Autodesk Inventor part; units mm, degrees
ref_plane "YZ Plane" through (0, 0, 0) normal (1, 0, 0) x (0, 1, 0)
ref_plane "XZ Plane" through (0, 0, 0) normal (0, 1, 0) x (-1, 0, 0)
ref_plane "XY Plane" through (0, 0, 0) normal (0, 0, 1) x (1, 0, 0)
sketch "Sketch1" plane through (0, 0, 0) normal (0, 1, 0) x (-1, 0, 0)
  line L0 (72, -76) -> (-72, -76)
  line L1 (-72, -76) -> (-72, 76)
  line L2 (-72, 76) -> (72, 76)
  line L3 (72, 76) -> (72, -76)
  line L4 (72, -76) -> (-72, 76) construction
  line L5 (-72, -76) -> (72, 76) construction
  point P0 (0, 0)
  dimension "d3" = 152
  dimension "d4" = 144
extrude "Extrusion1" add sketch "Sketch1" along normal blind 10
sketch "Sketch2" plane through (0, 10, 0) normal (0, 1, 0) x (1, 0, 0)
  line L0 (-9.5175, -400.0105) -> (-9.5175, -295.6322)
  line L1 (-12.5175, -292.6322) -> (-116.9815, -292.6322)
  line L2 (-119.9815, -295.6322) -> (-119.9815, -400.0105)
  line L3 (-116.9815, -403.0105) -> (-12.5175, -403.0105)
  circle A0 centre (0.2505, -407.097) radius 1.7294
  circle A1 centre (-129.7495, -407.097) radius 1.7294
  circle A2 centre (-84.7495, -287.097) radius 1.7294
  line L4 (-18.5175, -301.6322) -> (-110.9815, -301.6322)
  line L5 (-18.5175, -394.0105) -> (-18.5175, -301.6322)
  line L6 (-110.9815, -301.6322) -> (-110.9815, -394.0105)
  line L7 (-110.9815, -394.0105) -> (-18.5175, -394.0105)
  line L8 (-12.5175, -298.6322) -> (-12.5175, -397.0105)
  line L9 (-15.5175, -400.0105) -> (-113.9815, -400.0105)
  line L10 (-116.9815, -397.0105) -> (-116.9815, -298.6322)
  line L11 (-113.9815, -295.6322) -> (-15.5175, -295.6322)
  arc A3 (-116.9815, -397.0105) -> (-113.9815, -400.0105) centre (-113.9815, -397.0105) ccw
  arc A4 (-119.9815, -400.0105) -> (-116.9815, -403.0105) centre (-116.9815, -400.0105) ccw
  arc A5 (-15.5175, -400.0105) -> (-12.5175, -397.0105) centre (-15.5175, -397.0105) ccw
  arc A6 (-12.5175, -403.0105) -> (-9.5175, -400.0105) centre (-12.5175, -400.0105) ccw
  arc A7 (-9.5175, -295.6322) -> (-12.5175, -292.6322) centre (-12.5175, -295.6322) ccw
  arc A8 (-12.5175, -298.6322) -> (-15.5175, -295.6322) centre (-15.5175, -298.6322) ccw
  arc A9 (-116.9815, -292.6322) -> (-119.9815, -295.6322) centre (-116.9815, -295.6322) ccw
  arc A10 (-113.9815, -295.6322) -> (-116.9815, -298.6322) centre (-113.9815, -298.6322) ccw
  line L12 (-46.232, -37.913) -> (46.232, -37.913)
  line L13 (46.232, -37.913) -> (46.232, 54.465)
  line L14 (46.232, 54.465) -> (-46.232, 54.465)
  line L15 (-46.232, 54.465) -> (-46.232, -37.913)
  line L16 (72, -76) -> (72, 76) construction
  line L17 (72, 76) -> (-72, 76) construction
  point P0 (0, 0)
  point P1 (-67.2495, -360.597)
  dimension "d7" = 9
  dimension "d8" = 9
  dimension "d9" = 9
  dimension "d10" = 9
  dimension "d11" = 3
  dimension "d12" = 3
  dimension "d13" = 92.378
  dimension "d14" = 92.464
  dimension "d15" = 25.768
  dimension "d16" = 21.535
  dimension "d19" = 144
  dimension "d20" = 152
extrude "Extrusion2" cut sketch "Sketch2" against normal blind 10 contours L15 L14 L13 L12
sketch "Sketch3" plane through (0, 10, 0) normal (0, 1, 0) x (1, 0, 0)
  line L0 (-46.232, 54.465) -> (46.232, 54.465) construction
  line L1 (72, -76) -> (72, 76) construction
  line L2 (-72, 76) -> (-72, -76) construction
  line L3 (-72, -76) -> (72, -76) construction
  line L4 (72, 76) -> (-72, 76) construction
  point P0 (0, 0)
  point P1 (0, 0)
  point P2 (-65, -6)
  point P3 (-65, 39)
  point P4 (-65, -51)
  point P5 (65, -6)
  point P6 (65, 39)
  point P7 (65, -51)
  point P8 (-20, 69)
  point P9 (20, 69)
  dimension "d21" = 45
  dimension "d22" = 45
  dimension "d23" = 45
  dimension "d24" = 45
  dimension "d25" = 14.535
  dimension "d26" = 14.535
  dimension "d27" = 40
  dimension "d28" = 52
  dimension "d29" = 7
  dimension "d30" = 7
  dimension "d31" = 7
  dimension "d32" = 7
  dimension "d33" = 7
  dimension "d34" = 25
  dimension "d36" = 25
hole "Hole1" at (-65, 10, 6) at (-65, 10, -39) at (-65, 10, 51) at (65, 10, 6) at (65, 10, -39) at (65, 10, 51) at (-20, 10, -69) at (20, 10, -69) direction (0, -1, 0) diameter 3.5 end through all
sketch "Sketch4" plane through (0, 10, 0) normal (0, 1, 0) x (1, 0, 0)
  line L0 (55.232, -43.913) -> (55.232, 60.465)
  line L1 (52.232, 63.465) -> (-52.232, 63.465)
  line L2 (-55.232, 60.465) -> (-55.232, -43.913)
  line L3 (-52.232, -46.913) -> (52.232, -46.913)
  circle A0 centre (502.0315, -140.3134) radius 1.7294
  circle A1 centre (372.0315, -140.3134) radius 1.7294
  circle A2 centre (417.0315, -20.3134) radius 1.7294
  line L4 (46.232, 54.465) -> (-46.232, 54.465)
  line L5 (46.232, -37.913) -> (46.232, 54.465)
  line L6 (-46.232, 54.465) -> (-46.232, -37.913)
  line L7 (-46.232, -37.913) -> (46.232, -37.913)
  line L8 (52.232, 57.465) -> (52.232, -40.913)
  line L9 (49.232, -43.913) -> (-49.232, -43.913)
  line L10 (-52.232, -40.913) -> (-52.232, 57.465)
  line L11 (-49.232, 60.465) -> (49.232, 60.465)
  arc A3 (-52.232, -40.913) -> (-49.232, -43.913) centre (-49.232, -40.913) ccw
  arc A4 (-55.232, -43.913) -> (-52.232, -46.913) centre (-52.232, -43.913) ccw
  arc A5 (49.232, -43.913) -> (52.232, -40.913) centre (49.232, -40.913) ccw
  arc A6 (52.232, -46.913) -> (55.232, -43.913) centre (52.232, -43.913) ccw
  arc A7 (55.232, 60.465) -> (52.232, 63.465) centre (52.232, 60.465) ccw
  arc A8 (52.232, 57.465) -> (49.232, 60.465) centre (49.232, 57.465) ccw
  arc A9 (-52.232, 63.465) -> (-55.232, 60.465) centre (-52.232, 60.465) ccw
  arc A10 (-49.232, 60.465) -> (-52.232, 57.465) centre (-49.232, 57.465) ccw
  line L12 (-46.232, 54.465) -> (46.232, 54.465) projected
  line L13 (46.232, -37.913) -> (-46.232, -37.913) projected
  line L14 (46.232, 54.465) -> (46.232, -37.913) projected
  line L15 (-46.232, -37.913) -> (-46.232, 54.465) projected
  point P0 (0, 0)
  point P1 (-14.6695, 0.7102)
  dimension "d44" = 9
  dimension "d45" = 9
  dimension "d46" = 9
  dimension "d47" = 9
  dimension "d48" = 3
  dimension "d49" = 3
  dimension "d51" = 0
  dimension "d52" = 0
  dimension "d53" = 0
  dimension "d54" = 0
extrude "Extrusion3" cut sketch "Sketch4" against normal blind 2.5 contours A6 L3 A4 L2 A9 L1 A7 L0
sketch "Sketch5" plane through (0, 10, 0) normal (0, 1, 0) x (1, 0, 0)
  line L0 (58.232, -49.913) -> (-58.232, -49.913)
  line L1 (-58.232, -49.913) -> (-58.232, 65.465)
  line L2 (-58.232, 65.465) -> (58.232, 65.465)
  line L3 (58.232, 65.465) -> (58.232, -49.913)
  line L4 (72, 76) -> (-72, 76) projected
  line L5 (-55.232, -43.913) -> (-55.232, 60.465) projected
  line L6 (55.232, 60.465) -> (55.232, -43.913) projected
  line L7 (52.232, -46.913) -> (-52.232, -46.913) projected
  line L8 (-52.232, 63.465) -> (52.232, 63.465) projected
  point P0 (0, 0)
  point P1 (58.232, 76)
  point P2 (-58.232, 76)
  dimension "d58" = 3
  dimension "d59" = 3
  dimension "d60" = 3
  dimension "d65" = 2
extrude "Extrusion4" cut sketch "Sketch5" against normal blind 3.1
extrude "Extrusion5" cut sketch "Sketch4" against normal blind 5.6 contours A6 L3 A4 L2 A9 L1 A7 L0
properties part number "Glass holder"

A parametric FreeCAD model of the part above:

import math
import FreeCAD as App
import Part
import Sketcher
from FreeCAD import Vector
Q = App.Units.Quantity


def add_polygon(sketch, points):
    """Adds a closed chain of lines whose ends are joined by coincident constraints."""
    first, n = sketch.GeometryCount, len(points)
    for a, b in zip(points, points[1:] + points[:1]):
        sketch.addGeometry(Part.LineSegment(App.Vector(*a, 0), App.Vector(*b, 0)), False)
    for i in range(n):
        sketch.addConstraint(Sketcher.Constraint("Coincident", first + i, 2, first + (i + 1) % n, 1))

doc = App.newDocument("Part")
body = doc.addObject("PartDesign::Body", "Body")

# Sketch on XZ plane
sketch1 = body.newObject("Sketcher::SketchObject", "Sketch")
sketch1.AttachmentSupport = (doc.getObject("XZ_Plane"), [""])
sketch1.MapMode = "FlatFace"
add_polygon(sketch1, [(72, -76), (-72, -76), (-72, 76), (72, 76)])  # lines 0-3
sketch1.addConstraint(Sketcher.Constraint("Horizontal", 0))
sketch1.addConstraint(Sketcher.Constraint("Vertical", 1))
sketch1.addConstraint(Sketcher.Constraint("Horizontal", 2))
sketch1.addConstraint(Sketcher.Constraint("Vertical", 3))
sketch1.addConstraint(Sketcher.Constraint("Symmetric", 0, 2, 2, 2, -1, 1))
sketch1.addConstraint(Sketcher.Constraint("DistanceX", 0, 2, 0, 1, Q("144 mm")))
sketch1.addConstraint(Sketcher.Constraint("DistanceY", 1, 1, 1, 2, Q("152 mm")))
pad1 = body.newObject("PartDesign::Pad", "Pad")
pad1.Profile = sketch1
pad1.Length = 10
pad1.Reversed = True

# Sketch on XZ plane
sketch2 = body.newObject("Sketcher::SketchObject", "Sketch001")
sketch2.AttachmentSupport = (doc.getObject("XZ_Plane"), [""])
sketch2.MapMode = "FlatFace"
sketch2.AttachmentOffset = App.Placement(Vector(0, 0, -10), App.Rotation())
add_polygon(sketch2, [(-46, -54), (-46, 38), (46, 38), (46, -54)])  # lines 0-3
sketch2.addConstraint(Sketcher.Constraint("Vertical", 0))
sketch2.addConstraint(Sketcher.Constraint("Horizontal", 1))
sketch2.addConstraint(Sketcher.Constraint("Vertical", 2))
sketch2.addConstraint(Sketcher.Constraint("Horizontal", 3))
sketch2.addConstraint(Sketcher.Constraint("DistanceX", 1, 1, 1, 2, Q("92.464 mm")))
sketch2.addConstraint(Sketcher.Constraint("DistanceY", 0, 1, 0, 2, Q("92.378 mm")))
sketch2.addConstraint(Sketcher.Constraint("DistanceX", 0, 2, -1, 1, Q("46.232 mm")))
sketch2.addConstraint(Sketcher.Constraint("DistanceY", -1, 1, 0, 2, Q("37.913 mm")))
pocket1 = body.newObject("PartDesign::Pocket", "Pocket")
pocket1.Profile = sketch2
pocket1.Length = 10
pocket1.Reversed = True

# Sketch on XZ plane
sketch3 = body.newObject("Sketcher::SketchObject", "Sketch002")
sketch3.AttachmentSupport = (doc.getObject("XZ_Plane"), [""])
sketch3.MapMode = "FlatFace"
sketch3.AttachmentOffset = App.Placement(Vector(0, 0, -10), App.Rotation())
sketch3.addGeometry(Part.Circle(Vector(-65, 6, 0), Vector(0, 0, 1), 1.8), False)
sketch3.addGeometry(Part.Circle(Vector(-65, -39, 0), Vector(0, 0, 1), 1.8), False)
sketch3.addGeometry(Part.Circle(Vector(-65, 51, 0), Vector(0, 0, 1), 1.8), False)
sketch3.addGeometry(Part.Circle(Vector(65, 6, 0), Vector(0, 0, 1), 1.8), False)
sketch3.addGeometry(Part.Circle(Vector(65, -39, 0), Vector(0, 0, 1), 1.8), False)
sketch3.addGeometry(Part.Circle(Vector(65, 51, 0), Vector(0, 0, 1), 1.8), False)
sketch3.addGeometry(Part.Circle(Vector(-20, -69, 0), Vector(0, 0, 1), 1.8), False)
sketch3.addGeometry(Part.Circle(Vector(20, -69, 0), Vector(0, 0, 1), 1.8), False)
sketch3.addConstraint(Sketcher.Constraint("Equal", 0, 1))
sketch3.addConstraint(Sketcher.Constraint("Equal", 1, 2))
sketch3.addConstraint(Sketcher.Constraint("Equal", 2, 3))
sketch3.addConstraint(Sketcher.Constraint("Equal", 3, 4))
sketch3.addConstraint(Sketcher.Constraint("Equal", 4, 5))
sketch3.addConstraint(Sketcher.Constraint("Equal", 5, 6))
sketch3.addConstraint(Sketcher.Constraint("Equal", 6, 7))
sketch3.addConstraint(Sketcher.Constraint("Symmetric", 0, 3, 3, 3, -2))
sketch3.addConstraint(Sketcher.Constraint("Symmetric", 1, 3, 4, 3, -2))
sketch3.addConstraint(Sketcher.Constraint("Symmetric", 2, 3, 5, 3, -2))
sketch3.addConstraint(Sketcher.Constraint("Symmetric", 6, 3, 7, 3, -2))
sketch3.addConstraint(Sketcher.Constraint("Vertical", 0, 3, 1, 3))
sketch3.addConstraint(Sketcher.Constraint("Vertical", 1, 3, 2, 3))
sketch3.addConstraint(Sketcher.Constraint("Diameter", 0, Q("3.5 mm")))
sketch3.addConstraint(Sketcher.Constraint("DistanceX", 0, 3, -1, 1, Q("65 mm")))
sketch3.addConstraint(Sketcher.Constraint("DistanceY", -1, 1, 0, 3, Q("6 mm")))
sketch3.addConstraint(Sketcher.Constraint("DistanceY", 1, 3, -1, 1, Q("39 mm")))
sketch3.addConstraint(Sketcher.Constraint("DistanceY", -1, 1, 2, 3, Q("51 mm")))
sketch3.addConstraint(Sketcher.Constraint("DistanceX", 6, 3, -1, 1, Q("20 mm")))
sketch3.addConstraint(Sketcher.Constraint("DistanceY", 6, 3, -1, 1, Q("69 mm")))
doc.recompute()
hole = body.newObject("PartDesign::Hole", "Hole")
hole.Profile = sketch3
hole.ThreadType = "None"
hole.Diameter = 3.5
hole.DepthType = "ThroughAll"
hole.Reversed = True

# Sketch on XZ plane
sketch4 = body.newObject("Sketcher::SketchObject", "Sketch003")
sketch4.AttachmentSupport = (doc.getObject("XZ_Plane"), [""])
sketch4.MapMode = "FlatFace"
sketch4.AttachmentOffset = App.Placement(Vector(0, 0, -10), App.Rotation())
sketch4.addGeometry(Part.ArcOfCircle(Part.Circle(Vector(52.2, 43.9, 0), Vector(0, 0, 1), 3), math.radians(0), math.radians(90)), False)
sketch4.addGeometry(Part.LineSegment(Vector(55.2, 43.9, 0), Vector(55.2, -60.5, 0)), False)
sketch4.addGeometry(Part.ArcOfCircle(Part.Circle(Vector(52.2, -60.5, 0), Vector(0, 0, 1), 3), math.radians(-90), math.radians(0)), False)
sketch4.addGeometry(Part.LineSegment(Vector(52.2, -63.5, 0), Vector(-52.2, -63.5, 0)), False)
sketch4.addGeometry(Part.ArcOfCircle(Part.Circle(Vector(-52.2, -60.5, 0), Vector(0, 0, 1), 3), math.radians(180), math.radians(270)), False)
sketch4.addGeometry(Part.LineSegment(Vector(-55.2, -60.5, 0), Vector(-55.2, 43.9, 0)), False)
sketch4.addGeometry(Part.ArcOfCircle(Part.Circle(Vector(-52.2, 43.9, 0), Vector(0, 0, 1), 3), math.radians(90), math.radians(180)), False)
sketch4.addGeometry(Part.LineSegment(Vector(-52.2, 46.9, 0), Vector(52.2, 46.9, 0)), False)
sketch4.addGeometry(Part.ArcOfCircle(Part.Circle(Vector(49.2, -57.5, 0), Vector(0, 0, 1), 3), math.radians(-90), math.radians(0)), False)
sketch4.addGeometry(Part.LineSegment(Vector(52.2, -57.5, 0), Vector(52.2, 40.9, 0)), False)
sketch4.addGeometry(Part.ArcOfCircle(Part.Circle(Vector(49.2, 40.9, 0), Vector(0, 0, 1), 3), math.radians(0), math.radians(90)), False)
sketch4.addGeometry(Part.LineSegment(Vector(49.2, 43.9, 0), Vector(-49.2, 43.9, 0)), False)
sketch4.addGeometry(Part.ArcOfCircle(Part.Circle(Vector(-49.2, 40.9, 0), Vector(0, 0, 1), 3), math.radians(90), math.radians(180)), False)
sketch4.addGeometry(Part.LineSegment(Vector(-52.2, 40.9, 0), Vector(-52.2, -57.5, 0)), False)
sketch4.addGeometry(Part.ArcOfCircle(Part.Circle(Vector(-49.2, -57.5, 0), Vector(0, 0, 1), 3), math.radians(180), math.radians(270)), False)
sketch4.addGeometry(Part.LineSegment(Vector(-49.2, -60.5, 0), Vector(49.2, -60.5, 0)), False)
sketch4.addConstraint(Sketcher.Constraint("Tangent", 0, 1, 1, 1))
sketch4.addConstraint(Sketcher.Constraint("Tangent", 1, 2, 2, 2))
sketch4.addConstraint(Sketcher.Constraint("Tangent", 2, 1, 3, 1))
sketch4.addConstraint(Sketcher.Constraint("Tangent", 3, 2, 4, 2))
sketch4.addConstraint(Sketcher.Constraint("Tangent", 4, 1, 5, 1))
sketch4.addConstraint(Sketcher.Constraint("Tangent", 5, 2, 6, 2))
sketch4.addConstraint(Sketcher.Constraint("Tangent", 6, 1, 7, 1))
sketch4.addConstraint(Sketcher.Constraint("Tangent", 7, 2, 0, 2))
sketch4.addConstraint(Sketcher.Constraint("Tangent", 8, 2, 9, 1))
sketch4.addConstraint(Sketcher.Constraint("Tangent", 9, 2, 10, 1))
sketch4.addConstraint(Sketcher.Constraint("Tangent", 10, 2, 11, 1))
sketch4.addConstraint(Sketcher.Constraint("Tangent", 11, 2, 12, 1))
sketch4.addConstraint(Sketcher.Constraint("Tangent", 12, 2, 13, 1))
sketch4.addConstraint(Sketcher.Constraint("Tangent", 13, 2, 14, 1))
sketch4.addConstraint(Sketcher.Constraint("Tangent", 14, 2, 15, 1))
sketch4.addConstraint(Sketcher.Constraint("Tangent", 15, 2, 8, 1))
sketch4.addConstraint(Sketcher.Constraint("Vertical", 1))
sketch4.addConstraint(Sketcher.Constraint("Horizontal", 3))
sketch4.addConstraint(Sketcher.Constraint("Vertical", 5))
sketch4.addConstraint(Sketcher.Constraint("Horizontal", 7))
sketch4.addConstraint(Sketcher.Constraint("Vertical", 9))
sketch4.addConstraint(Sketcher.Constraint("Horizontal", 11))
sketch4.addConstraint(Sketcher.Constraint("Vertical", 13))
sketch4.addConstraint(Sketcher.Constraint("Horizontal", 15))
sketch4.addConstraint(Sketcher.Constraint("Equal", 0, 2))
sketch4.addConstraint(Sketcher.Constraint("Equal", 2, 4))
sketch4.addConstraint(Sketcher.Constraint("Equal", 4, 6))
sketch4.addConstraint(Sketcher.Constraint("Equal", 6, 8))
sketch4.addConstraint(Sketcher.Constraint("Equal", 8, 10))
sketch4.addConstraint(Sketcher.Constraint("Equal", 10, 12))
sketch4.addConstraint(Sketcher.Constraint("Equal", 12, 14))
sketch4.addConstraint(Sketcher.Constraint("Horizontal", 5, 2, 10, 2))
sketch4.addConstraint(Sketcher.Constraint("Horizontal", 4, 1, 14, 2))
sketch4.addConstraint(Sketcher.Constraint("Vertical", 7, 2, 8, 2))
sketch4.addConstraint(Sketcher.Constraint("Vertical", 6, 1, 12, 2))
sketch4.addConstraint(Sketcher.Constraint("Radius", 0, Q("3 mm")))
sketch4.addConstraint(Sketcher.Constraint("DistanceX", 3, 2, 3, 1, Q("104.464 mm")))
sketch4.addConstraint(Sketcher.Constraint("DistanceY", 1, 2, 1, 1, Q("104.378 mm")))
sketch4.addConstraint(Sketcher.Constraint("DistanceX", -1, 1, 0, 3, Q("52.232 mm")))
sketch4.addConstraint(Sketcher.Constraint("DistanceY", -1, 1, 0, 3, Q("43.913 mm")))
pocket2 = body.newObject("PartDesign::Pocket", "Pocket001")
pocket2.Profile = sketch4
pocket2.Length = 2.5
pocket2.Reversed = True

# Sketch on XZ plane
sketch5 = body.newObject("Sketcher::SketchObject", "Sketch004")
sketch5.AttachmentSupport = (doc.getObject("XZ_Plane"), [""])
sketch5.MapMode = "FlatFace"
sketch5.AttachmentOffset = App.Placement(Vector(0, 0, -10), App.Rotation())
add_polygon(sketch5, [(-58, 50), (58, 50), (58, -65), (-58, -65)])  # lines 0-3
sketch5.addConstraint(Sketcher.Constraint("Horizontal", 0))
sketch5.addConstraint(Sketcher.Constraint("Vertical", 1))
sketch5.addConstraint(Sketcher.Constraint("Horizontal", 2))
sketch5.addConstraint(Sketcher.Constraint("Vertical", 3))
sketch5.addConstraint(Sketcher.Constraint("DistanceX", 0, 1, 0, 2, Q("116.464 mm")))
sketch5.addConstraint(Sketcher.Constraint("DistanceY", 1, 2, 1, 1, Q("115.378 mm")))
sketch5.addConstraint(Sketcher.Constraint("DistanceX", -1, 1, 0, 2, Q("58.232 mm")))
sketch5.addConstraint(Sketcher.Constraint("DistanceY", -1, 1, 0, 2, Q("49.913 mm")))
pocket3 = body.newObject("PartDesign::Pocket", "Pocket002")
pocket3.Profile = sketch5
pocket3.Length = 3.1
pocket3.Reversed = True

# Sketch on XZ plane
sketch6 = body.newObject("Sketcher::SketchObject", "Sketch005")
sketch6.AttachmentSupport = (doc.getObject("XZ_Plane"), [""])
sketch6.MapMode = "FlatFace"
sketch6.AttachmentOffset = App.Placement(Vector(0, 0, -10), App.Rotation())
sketch6.addGeometry(Part.ArcOfCircle(Part.Circle(Vector(52.2, 43.9, 0), Vector(0, 0, 1), 3), math.radians(0), math.radians(90)), False)
sketch6.addGeometry(Part.LineSegment(Vector(55.2, 43.9, 0), Vector(55.2, -60.5, 0)), False)
sketch6.addGeometry(Part.ArcOfCircle(Part.Circle(Vector(52.2, -60.5, 0), Vector(0, 0, 1), 3), math.radians(-90), math.radians(0)), False)
sketch6.addGeometry(Part.LineSegment(Vector(52.2, -63.5, 0), Vector(-52.2, -63.5, 0)), False)
sketch6.addGeometry(Part.ArcOfCircle(Part.Circle(Vector(-52.2, -60.5, 0), Vector(0, 0, 1), 3), math.radians(180), math.radians(270)), False)
sketch6.addGeometry(Part.LineSegment(Vector(-55.2, -60.5, 0), Vector(-55.2, 43.9, 0)), False)
sketch6.addGeometry(Part.ArcOfCircle(Part.Circle(Vector(-52.2, 43.9, 0), Vector(0, 0, 1), 3), math.radians(90), math.radians(180)), False)
sketch6.addGeometry(Part.LineSegment(Vector(-52.2, 46.9, 0), Vector(52.2, 46.9, 0)), False)
sketch6.addGeometry(Part.ArcOfCircle(Part.Circle(Vector(49.2, -57.5, 0), Vector(0, 0, 1), 3), math.radians(-90), math.radians(0)), False)
sketch6.addGeometry(Part.LineSegment(Vector(52.2, -57.5, 0), Vector(52.2, 40.9, 0)), False)
sketch6.addGeometry(Part.ArcOfCircle(Part.Circle(Vector(49.2, 40.9, 0), Vector(0, 0, 1), 3), math.radians(0), math.radians(90)), False)
sketch6.addGeometry(Part.LineSegment(Vector(49.2, 43.9, 0), Vector(-49.2, 43.9, 0)), False)
sketch6.addGeometry(Part.ArcOfCircle(Part.Circle(Vector(-49.2, 40.9, 0), Vector(0, 0, 1), 3), math.radians(90), math.radians(180)), False)
sketch6.addGeometry(Part.LineSegment(Vector(-52.2, 40.9, 0), Vector(-52.2, -57.5, 0)), False)
sketch6.addGeometry(Part.ArcOfCircle(Part.Circle(Vector(-49.2, -57.5, 0), Vector(0, 0, 1), 3), math.radians(180), math.radians(270)), False)
sketch6.addGeometry(Part.LineSegment(Vector(-49.2, -60.5, 0), Vector(49.2, -60.5, 0)), False)
sketch6.addConstraint(Sketcher.Constraint("Tangent", 0, 1, 1, 1))
sketch6.addConstraint(Sketcher.Constraint("Tangent", 1, 2, 2, 2))
sketch6.addConstraint(Sketcher.Constraint("Tangent", 2, 1, 3, 1))
sketch6.addConstraint(Sketcher.Constraint("Tangent", 3, 2, 4, 2))
sketch6.addConstraint(Sketcher.Constraint("Tangent", 4, 1, 5, 1))
sketch6.addConstraint(Sketcher.Constraint("Tangent", 5, 2, 6, 2))
sketch6.addConstraint(Sketcher.Constraint("Tangent", 6, 1, 7, 1))
sketch6.addConstraint(Sketcher.Constraint("Tangent", 7, 2, 0, 2))
sketch6.addConstraint(Sketcher.Constraint("Tangent", 8, 2, 9, 1))
sketch6.addConstraint(Sketcher.Constraint("Tangent", 9, 2, 10, 1))
sketch6.addConstraint(Sketcher.Constraint("Tangent", 10, 2, 11, 1))
sketch6.addConstraint(Sketcher.Constraint("Tangent", 11, 2, 12, 1))
sketch6.addConstraint(Sketcher.Constraint("Tangent", 12, 2, 13, 1))
sketch6.addConstraint(Sketcher.Constraint("Tangent", 13, 2, 14, 1))
sketch6.addConstraint(Sketcher.Constraint("Tangent", 14, 2, 15, 1))
sketch6.addConstraint(Sketcher.Constraint("Tangent", 15, 2, 8, 1))
sketch6.addConstraint(Sketcher.Constraint("Vertical", 1))
sketch6.addConstraint(Sketcher.Constraint("Horizontal", 3))
sketch6.addConstraint(Sketcher.Constraint("Vertical", 5))
sketch6.addConstraint(Sketcher.Constraint("Horizontal", 7))
sketch6.addConstraint(Sketcher.Constraint("Vertical", 9))
sketch6.addConstraint(Sketcher.Constraint("Horizontal", 11))
sketch6.addConstraint(Sketcher.Constraint("Vertical", 13))
sketch6.addConstraint(Sketcher.Constraint("Horizontal", 15))
sketch6.addConstraint(Sketcher.Constraint("Equal", 0, 2))
sketch6.addConstraint(Sketcher.Constraint("Equal", 2, 4))
sketch6.addConstraint(Sketcher.Constraint("Equal", 4, 6))
sketch6.addConstraint(Sketcher.Constraint("Equal", 6, 8))
sketch6.addConstraint(Sketcher.Constraint("Equal", 8, 10))
sketch6.addConstraint(Sketcher.Constraint("Equal", 10, 12))
sketch6.addConstraint(Sketcher.Constraint("Equal", 12, 14))
sketch6.addConstraint(Sketcher.Constraint("Horizontal", 5, 2, 10, 2))
sketch6.addConstraint(Sketcher.Constraint("Horizontal", 4, 1, 14, 2))
sketch6.addConstraint(Sketcher.Constraint("Vertical", 7, 2, 8, 2))
sketch6.addConstraint(Sketcher.Constraint("Vertical", 6, 1, 12, 2))
sketch6.addConstraint(Sketcher.Constraint("Radius", 0, Q("3 mm")))
sketch6.addConstraint(Sketcher.Constraint("DistanceX", 3, 2, 3, 1, Q("104.464 mm")))
sketch6.addConstraint(Sketcher.Constraint("DistanceY", 1, 2, 1, 1, Q("104.378 mm")))
sketch6.addConstraint(Sketcher.Constraint("DistanceX", -1, 1, 0, 3, Q("52.232 mm")))
sketch6.addConstraint(Sketcher.Constraint("DistanceY", -1, 1, 0, 3, Q("43.913 mm")))
pocket4 = body.newObject("PartDesign::Pocket", "Pocket003")
pocket4.Profile = sketch6
pocket4.Length = 5.6
pocket4.Reversed = True

doc.recompute()
